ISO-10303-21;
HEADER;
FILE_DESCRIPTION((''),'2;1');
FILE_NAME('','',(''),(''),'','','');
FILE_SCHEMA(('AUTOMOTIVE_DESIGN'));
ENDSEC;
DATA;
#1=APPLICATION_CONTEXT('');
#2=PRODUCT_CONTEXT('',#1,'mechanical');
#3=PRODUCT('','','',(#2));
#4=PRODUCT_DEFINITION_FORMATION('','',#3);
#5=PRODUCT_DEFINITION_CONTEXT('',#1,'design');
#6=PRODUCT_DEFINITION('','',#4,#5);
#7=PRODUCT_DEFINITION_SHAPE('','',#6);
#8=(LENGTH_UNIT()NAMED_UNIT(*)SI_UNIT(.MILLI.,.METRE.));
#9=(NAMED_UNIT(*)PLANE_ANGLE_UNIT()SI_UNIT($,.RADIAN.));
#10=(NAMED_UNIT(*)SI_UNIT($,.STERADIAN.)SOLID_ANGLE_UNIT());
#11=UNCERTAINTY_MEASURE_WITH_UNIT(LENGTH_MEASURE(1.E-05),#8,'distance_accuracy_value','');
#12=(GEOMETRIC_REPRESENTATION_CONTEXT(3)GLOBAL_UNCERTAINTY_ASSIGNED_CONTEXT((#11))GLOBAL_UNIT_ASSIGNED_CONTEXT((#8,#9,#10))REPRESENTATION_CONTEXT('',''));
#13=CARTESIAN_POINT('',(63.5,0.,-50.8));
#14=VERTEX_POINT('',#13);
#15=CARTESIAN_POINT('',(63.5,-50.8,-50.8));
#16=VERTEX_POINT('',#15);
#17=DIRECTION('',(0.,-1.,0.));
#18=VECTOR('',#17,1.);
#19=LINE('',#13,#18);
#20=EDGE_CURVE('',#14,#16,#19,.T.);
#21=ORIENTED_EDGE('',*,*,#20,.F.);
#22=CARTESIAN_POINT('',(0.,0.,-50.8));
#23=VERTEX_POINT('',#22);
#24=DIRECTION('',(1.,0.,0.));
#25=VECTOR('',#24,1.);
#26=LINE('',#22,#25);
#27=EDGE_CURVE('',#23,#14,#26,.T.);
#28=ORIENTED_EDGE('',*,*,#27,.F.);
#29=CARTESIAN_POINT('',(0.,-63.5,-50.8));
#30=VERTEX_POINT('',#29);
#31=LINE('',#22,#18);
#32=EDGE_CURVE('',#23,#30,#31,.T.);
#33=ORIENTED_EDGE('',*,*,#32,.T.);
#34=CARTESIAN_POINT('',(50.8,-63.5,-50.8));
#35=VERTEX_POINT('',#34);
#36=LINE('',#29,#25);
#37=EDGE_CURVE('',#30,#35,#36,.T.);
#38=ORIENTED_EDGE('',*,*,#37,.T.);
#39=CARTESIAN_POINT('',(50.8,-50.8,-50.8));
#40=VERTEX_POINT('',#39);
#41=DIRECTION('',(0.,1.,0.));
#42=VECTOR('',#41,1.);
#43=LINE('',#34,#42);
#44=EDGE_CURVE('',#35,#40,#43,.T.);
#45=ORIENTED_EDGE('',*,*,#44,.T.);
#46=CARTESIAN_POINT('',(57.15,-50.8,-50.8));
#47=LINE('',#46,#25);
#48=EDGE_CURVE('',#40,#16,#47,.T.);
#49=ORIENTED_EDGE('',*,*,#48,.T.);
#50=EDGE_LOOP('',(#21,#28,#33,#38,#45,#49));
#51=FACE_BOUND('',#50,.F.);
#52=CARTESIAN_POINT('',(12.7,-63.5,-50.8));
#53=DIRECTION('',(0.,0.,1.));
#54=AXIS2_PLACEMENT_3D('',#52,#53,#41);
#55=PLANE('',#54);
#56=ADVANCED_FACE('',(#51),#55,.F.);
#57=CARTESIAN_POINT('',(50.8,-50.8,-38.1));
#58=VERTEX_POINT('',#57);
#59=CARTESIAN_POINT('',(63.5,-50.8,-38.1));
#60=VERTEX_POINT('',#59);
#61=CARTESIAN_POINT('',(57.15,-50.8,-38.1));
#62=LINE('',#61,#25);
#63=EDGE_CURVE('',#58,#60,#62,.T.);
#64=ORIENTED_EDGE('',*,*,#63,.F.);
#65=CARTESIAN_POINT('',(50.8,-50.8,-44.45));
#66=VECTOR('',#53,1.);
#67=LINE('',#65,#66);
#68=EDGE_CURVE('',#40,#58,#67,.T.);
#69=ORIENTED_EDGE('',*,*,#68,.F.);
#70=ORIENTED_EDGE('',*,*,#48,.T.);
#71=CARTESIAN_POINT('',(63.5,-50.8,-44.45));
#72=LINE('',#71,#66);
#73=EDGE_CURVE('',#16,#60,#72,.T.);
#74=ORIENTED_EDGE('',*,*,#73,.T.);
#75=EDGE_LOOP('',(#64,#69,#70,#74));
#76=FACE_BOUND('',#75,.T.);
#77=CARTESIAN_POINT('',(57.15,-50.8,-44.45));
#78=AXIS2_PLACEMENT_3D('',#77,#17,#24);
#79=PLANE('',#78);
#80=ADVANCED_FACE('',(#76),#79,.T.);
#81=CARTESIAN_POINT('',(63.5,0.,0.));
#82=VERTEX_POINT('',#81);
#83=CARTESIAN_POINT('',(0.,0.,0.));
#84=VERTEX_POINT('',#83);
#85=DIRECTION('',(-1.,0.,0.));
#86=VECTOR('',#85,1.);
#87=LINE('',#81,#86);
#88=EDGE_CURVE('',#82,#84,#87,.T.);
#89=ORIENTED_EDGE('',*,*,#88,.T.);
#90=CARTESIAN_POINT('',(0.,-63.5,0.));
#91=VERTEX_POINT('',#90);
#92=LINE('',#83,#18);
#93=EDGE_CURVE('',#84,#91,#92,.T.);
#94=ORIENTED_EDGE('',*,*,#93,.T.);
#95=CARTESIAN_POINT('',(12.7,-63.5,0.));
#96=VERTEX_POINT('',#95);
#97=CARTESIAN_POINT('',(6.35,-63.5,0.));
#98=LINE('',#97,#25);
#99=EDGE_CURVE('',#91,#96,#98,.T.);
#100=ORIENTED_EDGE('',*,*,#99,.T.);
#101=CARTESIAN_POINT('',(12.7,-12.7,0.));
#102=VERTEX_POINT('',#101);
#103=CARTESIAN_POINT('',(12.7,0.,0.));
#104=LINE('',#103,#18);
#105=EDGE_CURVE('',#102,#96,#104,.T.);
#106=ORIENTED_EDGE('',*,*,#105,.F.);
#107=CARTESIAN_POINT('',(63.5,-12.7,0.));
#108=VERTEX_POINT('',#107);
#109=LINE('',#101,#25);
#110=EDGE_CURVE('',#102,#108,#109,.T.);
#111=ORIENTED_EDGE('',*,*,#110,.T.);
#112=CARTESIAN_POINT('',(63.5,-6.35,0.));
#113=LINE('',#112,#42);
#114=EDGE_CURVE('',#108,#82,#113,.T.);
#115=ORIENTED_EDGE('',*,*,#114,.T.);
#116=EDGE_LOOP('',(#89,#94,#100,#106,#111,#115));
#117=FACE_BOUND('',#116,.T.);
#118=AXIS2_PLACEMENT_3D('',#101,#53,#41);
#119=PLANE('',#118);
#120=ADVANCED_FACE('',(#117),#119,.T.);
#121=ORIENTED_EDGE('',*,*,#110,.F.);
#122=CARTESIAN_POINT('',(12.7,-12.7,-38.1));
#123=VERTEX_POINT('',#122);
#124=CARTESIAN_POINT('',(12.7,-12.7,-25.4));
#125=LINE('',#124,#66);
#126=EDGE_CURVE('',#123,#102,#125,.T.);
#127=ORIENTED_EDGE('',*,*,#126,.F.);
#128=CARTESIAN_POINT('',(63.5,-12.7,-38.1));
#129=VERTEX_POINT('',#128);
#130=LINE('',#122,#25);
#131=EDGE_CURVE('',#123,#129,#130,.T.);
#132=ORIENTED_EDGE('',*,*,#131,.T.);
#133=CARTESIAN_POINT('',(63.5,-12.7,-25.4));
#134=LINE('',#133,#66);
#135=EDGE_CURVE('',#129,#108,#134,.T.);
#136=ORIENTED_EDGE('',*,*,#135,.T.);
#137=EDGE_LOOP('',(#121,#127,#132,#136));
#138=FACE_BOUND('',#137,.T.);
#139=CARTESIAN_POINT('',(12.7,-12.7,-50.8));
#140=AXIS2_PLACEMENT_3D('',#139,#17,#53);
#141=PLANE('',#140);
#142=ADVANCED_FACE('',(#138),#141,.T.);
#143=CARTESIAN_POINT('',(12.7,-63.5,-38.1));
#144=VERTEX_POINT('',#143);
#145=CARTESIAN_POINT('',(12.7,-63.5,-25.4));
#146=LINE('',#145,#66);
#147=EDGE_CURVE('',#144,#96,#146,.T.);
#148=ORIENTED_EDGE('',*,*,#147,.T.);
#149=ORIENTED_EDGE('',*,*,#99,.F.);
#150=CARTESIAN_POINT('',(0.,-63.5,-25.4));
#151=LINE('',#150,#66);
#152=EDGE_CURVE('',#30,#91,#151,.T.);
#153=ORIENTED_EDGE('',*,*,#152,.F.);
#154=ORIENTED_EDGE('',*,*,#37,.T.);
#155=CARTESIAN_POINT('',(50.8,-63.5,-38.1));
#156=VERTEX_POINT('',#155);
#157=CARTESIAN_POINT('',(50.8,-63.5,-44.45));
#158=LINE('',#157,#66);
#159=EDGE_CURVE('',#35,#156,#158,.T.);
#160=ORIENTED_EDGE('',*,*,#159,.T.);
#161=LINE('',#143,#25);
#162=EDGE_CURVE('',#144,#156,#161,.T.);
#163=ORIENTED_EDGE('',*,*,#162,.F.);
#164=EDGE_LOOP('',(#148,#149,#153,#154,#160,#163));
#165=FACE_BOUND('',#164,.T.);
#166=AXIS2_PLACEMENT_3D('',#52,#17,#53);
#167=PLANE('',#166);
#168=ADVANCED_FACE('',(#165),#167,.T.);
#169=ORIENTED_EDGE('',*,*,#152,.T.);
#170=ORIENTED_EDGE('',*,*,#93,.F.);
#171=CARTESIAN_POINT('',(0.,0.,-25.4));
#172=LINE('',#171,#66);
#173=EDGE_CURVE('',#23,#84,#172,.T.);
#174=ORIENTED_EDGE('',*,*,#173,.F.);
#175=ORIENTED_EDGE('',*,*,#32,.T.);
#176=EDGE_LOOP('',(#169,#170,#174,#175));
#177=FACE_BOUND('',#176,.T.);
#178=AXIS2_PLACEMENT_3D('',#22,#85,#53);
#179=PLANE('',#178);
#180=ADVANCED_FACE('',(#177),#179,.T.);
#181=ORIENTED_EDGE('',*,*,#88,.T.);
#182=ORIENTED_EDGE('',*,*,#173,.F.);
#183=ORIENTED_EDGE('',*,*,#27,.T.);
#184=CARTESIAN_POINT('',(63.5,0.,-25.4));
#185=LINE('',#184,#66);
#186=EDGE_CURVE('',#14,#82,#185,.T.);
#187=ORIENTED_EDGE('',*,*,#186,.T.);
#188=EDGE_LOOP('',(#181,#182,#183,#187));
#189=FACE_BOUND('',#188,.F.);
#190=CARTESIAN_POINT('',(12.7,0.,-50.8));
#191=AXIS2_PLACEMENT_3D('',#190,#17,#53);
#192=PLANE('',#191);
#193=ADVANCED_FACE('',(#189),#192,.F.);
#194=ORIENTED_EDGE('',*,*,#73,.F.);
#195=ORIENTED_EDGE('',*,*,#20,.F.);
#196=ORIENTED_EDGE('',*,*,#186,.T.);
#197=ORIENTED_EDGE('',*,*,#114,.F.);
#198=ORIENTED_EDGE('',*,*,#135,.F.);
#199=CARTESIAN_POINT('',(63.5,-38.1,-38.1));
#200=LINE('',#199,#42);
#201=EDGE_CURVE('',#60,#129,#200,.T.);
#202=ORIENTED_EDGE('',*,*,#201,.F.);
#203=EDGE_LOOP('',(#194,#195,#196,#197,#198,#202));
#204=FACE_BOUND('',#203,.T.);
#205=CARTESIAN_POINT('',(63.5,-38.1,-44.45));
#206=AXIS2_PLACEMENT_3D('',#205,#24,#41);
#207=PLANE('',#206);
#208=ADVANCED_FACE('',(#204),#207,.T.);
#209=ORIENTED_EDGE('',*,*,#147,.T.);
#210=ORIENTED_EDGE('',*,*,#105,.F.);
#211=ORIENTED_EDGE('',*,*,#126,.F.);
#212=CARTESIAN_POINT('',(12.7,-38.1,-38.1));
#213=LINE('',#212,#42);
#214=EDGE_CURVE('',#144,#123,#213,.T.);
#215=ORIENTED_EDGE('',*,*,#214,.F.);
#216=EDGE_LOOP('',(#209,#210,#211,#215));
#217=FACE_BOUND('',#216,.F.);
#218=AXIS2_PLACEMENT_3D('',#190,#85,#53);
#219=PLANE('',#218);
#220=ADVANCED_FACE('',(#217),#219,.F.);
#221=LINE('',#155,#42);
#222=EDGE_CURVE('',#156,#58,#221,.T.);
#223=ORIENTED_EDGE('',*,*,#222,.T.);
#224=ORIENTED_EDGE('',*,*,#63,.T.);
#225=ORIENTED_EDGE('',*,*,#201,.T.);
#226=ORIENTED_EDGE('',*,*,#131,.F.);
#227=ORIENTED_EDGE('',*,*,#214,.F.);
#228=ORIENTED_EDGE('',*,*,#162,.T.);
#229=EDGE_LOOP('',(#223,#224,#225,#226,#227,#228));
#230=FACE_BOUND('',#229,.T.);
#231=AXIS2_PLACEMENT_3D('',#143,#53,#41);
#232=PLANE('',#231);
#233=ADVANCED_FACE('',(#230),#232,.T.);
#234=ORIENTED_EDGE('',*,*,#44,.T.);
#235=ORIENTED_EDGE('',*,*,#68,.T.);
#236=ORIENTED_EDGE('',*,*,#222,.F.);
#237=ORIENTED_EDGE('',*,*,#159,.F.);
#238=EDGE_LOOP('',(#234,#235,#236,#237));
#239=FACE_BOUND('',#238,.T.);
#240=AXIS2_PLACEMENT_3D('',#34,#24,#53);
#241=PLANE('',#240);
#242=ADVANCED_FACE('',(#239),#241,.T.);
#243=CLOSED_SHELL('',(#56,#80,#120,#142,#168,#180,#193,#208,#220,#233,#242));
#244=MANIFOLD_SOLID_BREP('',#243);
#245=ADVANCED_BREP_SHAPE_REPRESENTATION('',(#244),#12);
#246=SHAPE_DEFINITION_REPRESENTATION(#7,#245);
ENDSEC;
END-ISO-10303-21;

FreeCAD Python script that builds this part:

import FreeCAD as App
import Part
import Sketcher
Q = App.Units.Quantity


def add_polygon(sketch, points):
    """Adds a closed chain of lines whose ends are joined by coincident constraints."""
    first, n = sketch.GeometryCount, len(points)
    for a, b in zip(points, points[1:] + points[:1]):
        sketch.addGeometry(Part.LineSegment(App.Vector(*a, 0), App.Vector(*b, 0)), False)
    for i in range(n):
        sketch.addConstraint(Sketcher.Constraint("Coincident", first + i, 2, first + (i + 1) % n, 1))

doc = App.newDocument("Part")
body = doc.addObject("PartDesign::Body", "Body")

# Sketch on XZ plane
sketch1 = body.newObject("Sketcher::SketchObject", "Sketch")
sketch1.AttachmentSupport = (doc.getObject("XZ_Plane"), [""])
sketch1.MapMode = "FlatFace"
add_polygon(sketch1, [(0, 0), (0, -51), (13, -51), (13, 0)])  # lines 0-3
sketch1.addConstraint([
    Sketcher.Constraint("Vertical", 0),
    Sketcher.Constraint("Horizontal", 1),
    Sketcher.Constraint("Vertical", 2),
    Sketcher.Constraint("Horizontal", 3),
    Sketcher.Constraint("Coincident", 3, 2, -1, 1),
    Sketcher.Constraint("DistanceY", 0, 2, 0, 1, Q("2 in")),
    Sketcher.Constraint("DistanceX", 1, 1, 1, 2, Q("0.5 in")),
])
pad1 = body.newObject("PartDesign::Pad", "Pad")
pad1.Profile = sketch1
pad1.Length = Q("2.5 in")

# Sketch on YZ plane
sketch2 = body.newObject("Sketcher::SketchObject", "Sketch001")
sketch2.AttachmentSupport = (doc.getObject("YZ_Plane"), [""])
sketch2.MapMode = "FlatFace"
sketch2.AttachmentOffset = App.Placement(App.Vector(0, 0, 0.5 * 25.4), App.Rotation())
add_polygon(sketch2, [(-13, 0), (-13, -51), (0, -51), (0, 0)])  # lines 0-3
sketch2.addConstraint([
    Sketcher.Constraint("Vertical", 0),
    Sketcher.Constraint("Horizontal", 1),
    Sketcher.Constraint("Vertical", 2),
    Sketcher.Constraint("Horizontal", 3),
    Sketcher.Constraint("Coincident", 2, 2, -1, 1),
    Sketcher.Constraint("DistanceY", 0, 2, 0, 1, Q("2 in")),
    Sketcher.Constraint("DistanceX", 1, 1, 1, 2, Q("0.5 in")),
])
pad2 = body.newObject("PartDesign::Pad", "Pad001")
pad2.Profile = sketch2
pad2.Length = Q("2 in")

# Sketch on YZ plane
sketch3 = body.newObject("Sketcher::SketchObject", "Sketch002")
sketch3.AttachmentSupport = (doc.getObject("YZ_Plane"), [""])
sketch3.MapMode = "FlatFace"
sketch3.AttachmentOffset = App.Placement(App.Vector(0, 0, 0.5 * 25.4), App.Rotation())
add_polygon(sketch3, [(-64, -38), (-64, -51), (-13, -51), (-13, -38)])  # lines 0-3
sketch3.addConstraint([
    Sketcher.Constraint("Vertical", 0),
    Sketcher.Constraint("Horizontal", 1),
    Sketcher.Constraint("Vertical", 2),
    Sketcher.Constraint("Horizontal", 3),
    Sketcher.Constraint("DistanceX", 1, 1, 1, 2, Q("2 in")),
    Sketcher.Constraint("DistanceY", 0, 2, 0, 1, Q("0.5 in")),
    Sketcher.Constraint("DistanceY", 0, 2, -1, 1, Q("2 in")),
    Sketcher.Constraint("DistanceX", 0, 2, -1, 1, Q("2.5 in")),
])
pad3 = body.newObject("PartDesign::Pad", "Pad002")
pad3.Profile = sketch3
pad3.Length = Q("2 in")

# Sketch on XZ plane
sketch4 = body.newObject("Sketcher::SketchObject", "Sketch003")
sketch4.AttachmentSupport = (doc.getObject("XZ_Plane"), [""])
sketch4.MapMode = "FlatFace"
sketch4.AttachmentOffset = App.Placement(App.Vector(0, 0, 2.5 * 25.4), App.Rotation())
add_polygon(sketch4, [(51, -38), (51, -51), (64, -51), (64, -38)])  # lines 0-3
sketch4.addConstraint([
    Sketcher.Constraint("Vertical", 0),
    Sketcher.Constraint("Horizontal", 1),
    Sketcher.Constraint("Vertical", 2),
    Sketcher.Constraint("Horizontal", 3),
    Sketcher.Constraint("Equal", 3, 0),
    Sketcher.Constraint("DistanceX", 1, 1, 1, 2, Q("0.5 in")),
    Sketcher.Constraint("DistanceX", -1, 1, 0, 2, Q("2 in")),
    Sketcher.Constraint("DistanceY", 0, 2, -1, 1, Q("2 in")),
])
pocket1 = body.newObject("PartDesign::Pocket", "Pocket")
pocket1.Profile = sketch4
pocket1.Length = Q("0.5 in")

doc.recompute()
